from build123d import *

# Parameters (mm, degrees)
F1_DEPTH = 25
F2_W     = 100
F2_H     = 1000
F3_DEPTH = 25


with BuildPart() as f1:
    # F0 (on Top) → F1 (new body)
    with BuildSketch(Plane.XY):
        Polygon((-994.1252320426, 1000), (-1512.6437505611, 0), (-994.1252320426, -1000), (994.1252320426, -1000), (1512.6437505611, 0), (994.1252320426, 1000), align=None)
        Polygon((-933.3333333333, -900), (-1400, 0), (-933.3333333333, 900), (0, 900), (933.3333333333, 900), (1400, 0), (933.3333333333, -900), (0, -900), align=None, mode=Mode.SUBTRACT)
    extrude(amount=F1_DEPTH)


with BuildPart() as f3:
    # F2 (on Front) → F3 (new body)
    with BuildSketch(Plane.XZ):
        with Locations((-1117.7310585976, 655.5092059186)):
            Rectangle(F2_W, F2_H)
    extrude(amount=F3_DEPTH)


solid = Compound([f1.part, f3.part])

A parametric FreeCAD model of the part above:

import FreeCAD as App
import Part
import Sketcher
from FreeCAD import Vector


def add_polygon(sketch, points):
    """Adds a closed chain of lines whose ends are joined by coincident constraints."""
    first, n = sketch.GeometryCount, len(points)
    for a, b in zip(points, points[1:] + points[:1]):
        sketch.addGeometry(Part.LineSegment(App.Vector(*a, 0), App.Vector(*b, 0)), False)
    for i in range(n):
        sketch.addConstraint(Sketcher.Constraint("Coincident", first + i, 2, first + (i + 1) % n, 1))

doc = App.newDocument("Part")
body = doc.addObject("PartDesign::Body", "Body")

# Sketch on XY plane
sketch1 = body.newObject("Sketcher::SketchObject", "Sketch")
sketch1.AttachmentSupport = (doc.getObject("XY_Plane"), [""])
sketch1.MapMode = "FlatFace"
add_polygon(sketch1, [(-994, 1000), (-1513, 0), (-994, -1000), (994, -1000), (1513, 0), (994, 1000)])  # lines 0-5
add_polygon(sketch1, [(933, -900), (-933, -900), (-1400, 0), (-933, 900), (933, 900), (1400, 0)])  # lines 6-11
sketch1.addConstraint(Sketcher.Constraint("Horizontal", 2))
sketch1.addConstraint(Sketcher.Constraint("Horizontal", 5))
sketch1.addConstraint(Sketcher.Constraint("Horizontal", 6))
sketch1.addConstraint(Sketcher.Constraint("Horizontal", 9))
sketch1.addConstraint(Sketcher.Constraint("Symmetric", 0, 2, 3, 2, -1, 1))
sketch1.addConstraint(Sketcher.Constraint("Symmetric", 1, 2, 4, 2, -1, 1))
sketch1.addConstraint(Sketcher.Constraint("Symmetric", 6, 2, 9, 2, -1, 1))
sketch1.addConstraint(Sketcher.Constraint("Symmetric", 7, 2, 10, 2, -1, 1))
sketch1.addConstraint(Sketcher.Constraint("PointOnObject", 0, 2, -1))
sketch1.addConstraint(Sketcher.Constraint("PointOnObject", 7, 2, -1))
sketch1.addConstraint(Sketcher.Constraint("Parallel", 0, 3))
sketch1.addConstraint(Sketcher.Constraint("Parallel", 4, 7))
sketch1.addConstraint(Sketcher.Constraint("Parallel", 3, 8))
sketch1.addConstraint(Sketcher.Constraint("Parallel", 8, 11))
sketch1.addConstraint(Sketcher.Constraint("Vertical", 2, 2, 4, 2))
sketch1.addConstraint(Sketcher.Constraint("DistanceY", 1, 2, -1, 1, 1000.0))
sketch1.addConstraint(Sketcher.Constraint("DistanceY", 6, 2, -1, 1, 900.0))
sketch1.addConstraint(Sketcher.Constraint("DistanceX", 7, 2, -1, 1, 1400.0))
sketch1.addConstraint(Sketcher.Constraint("DistanceX", 0, 2, 3, 2, 3025.287501))
sketch1.addConstraint(Sketcher.Constraint("DistanceX", 1, 2, 6, 2, 60.791899))
pad1 = body.newObject("PartDesign::Pad", "Pad")
pad1.Profile = sketch1
pad1.Length = 25
body2 = doc.addObject("PartDesign::Body", "Body001")

# Sketch on XZ plane
sketch2 = body2.newObject("Sketcher::SketchObject", "Sketch001")
sketch2.AttachmentSupport = (doc.getObject("XZ_Plane001"), [""])
sketch2.MapMode = "FlatFace"
add_polygon(sketch2, [(-1168, 1156), (-1168, 156), (-1068, 156), (-1068, 1156)])  # lines 0-3
sketch2.addConstraint(Sketcher.Constraint("Vertical", 0))
sketch2.addConstraint(Sketcher.Constraint("Horizontal", 1))
sketch2.addConstraint(Sketcher.Constraint("Vertical", 2))
sketch2.addConstraint(Sketcher.Constraint("Horizontal", 3))
sketch2.addConstraint(Sketcher.Constraint("DistanceX", 1, 1, 1, 2, 100.0))
sketch2.addConstraint(Sketcher.Constraint("DistanceY", 0, 2, 0, 1, 1000.0))
sketch2.addConstraint(Sketcher.Constraint("DistanceX", 0, 2, -1, 1, 1167.731059))
sketch2.addConstraint(Sketcher.Constraint("DistanceY", -1, 1, 0, 2, 155.509206))
pad2 = body2.newObject("PartDesign::Pad", "Pad001")
pad2.Profile = sketch2
pad2.Length = 25

doc.recompute()
